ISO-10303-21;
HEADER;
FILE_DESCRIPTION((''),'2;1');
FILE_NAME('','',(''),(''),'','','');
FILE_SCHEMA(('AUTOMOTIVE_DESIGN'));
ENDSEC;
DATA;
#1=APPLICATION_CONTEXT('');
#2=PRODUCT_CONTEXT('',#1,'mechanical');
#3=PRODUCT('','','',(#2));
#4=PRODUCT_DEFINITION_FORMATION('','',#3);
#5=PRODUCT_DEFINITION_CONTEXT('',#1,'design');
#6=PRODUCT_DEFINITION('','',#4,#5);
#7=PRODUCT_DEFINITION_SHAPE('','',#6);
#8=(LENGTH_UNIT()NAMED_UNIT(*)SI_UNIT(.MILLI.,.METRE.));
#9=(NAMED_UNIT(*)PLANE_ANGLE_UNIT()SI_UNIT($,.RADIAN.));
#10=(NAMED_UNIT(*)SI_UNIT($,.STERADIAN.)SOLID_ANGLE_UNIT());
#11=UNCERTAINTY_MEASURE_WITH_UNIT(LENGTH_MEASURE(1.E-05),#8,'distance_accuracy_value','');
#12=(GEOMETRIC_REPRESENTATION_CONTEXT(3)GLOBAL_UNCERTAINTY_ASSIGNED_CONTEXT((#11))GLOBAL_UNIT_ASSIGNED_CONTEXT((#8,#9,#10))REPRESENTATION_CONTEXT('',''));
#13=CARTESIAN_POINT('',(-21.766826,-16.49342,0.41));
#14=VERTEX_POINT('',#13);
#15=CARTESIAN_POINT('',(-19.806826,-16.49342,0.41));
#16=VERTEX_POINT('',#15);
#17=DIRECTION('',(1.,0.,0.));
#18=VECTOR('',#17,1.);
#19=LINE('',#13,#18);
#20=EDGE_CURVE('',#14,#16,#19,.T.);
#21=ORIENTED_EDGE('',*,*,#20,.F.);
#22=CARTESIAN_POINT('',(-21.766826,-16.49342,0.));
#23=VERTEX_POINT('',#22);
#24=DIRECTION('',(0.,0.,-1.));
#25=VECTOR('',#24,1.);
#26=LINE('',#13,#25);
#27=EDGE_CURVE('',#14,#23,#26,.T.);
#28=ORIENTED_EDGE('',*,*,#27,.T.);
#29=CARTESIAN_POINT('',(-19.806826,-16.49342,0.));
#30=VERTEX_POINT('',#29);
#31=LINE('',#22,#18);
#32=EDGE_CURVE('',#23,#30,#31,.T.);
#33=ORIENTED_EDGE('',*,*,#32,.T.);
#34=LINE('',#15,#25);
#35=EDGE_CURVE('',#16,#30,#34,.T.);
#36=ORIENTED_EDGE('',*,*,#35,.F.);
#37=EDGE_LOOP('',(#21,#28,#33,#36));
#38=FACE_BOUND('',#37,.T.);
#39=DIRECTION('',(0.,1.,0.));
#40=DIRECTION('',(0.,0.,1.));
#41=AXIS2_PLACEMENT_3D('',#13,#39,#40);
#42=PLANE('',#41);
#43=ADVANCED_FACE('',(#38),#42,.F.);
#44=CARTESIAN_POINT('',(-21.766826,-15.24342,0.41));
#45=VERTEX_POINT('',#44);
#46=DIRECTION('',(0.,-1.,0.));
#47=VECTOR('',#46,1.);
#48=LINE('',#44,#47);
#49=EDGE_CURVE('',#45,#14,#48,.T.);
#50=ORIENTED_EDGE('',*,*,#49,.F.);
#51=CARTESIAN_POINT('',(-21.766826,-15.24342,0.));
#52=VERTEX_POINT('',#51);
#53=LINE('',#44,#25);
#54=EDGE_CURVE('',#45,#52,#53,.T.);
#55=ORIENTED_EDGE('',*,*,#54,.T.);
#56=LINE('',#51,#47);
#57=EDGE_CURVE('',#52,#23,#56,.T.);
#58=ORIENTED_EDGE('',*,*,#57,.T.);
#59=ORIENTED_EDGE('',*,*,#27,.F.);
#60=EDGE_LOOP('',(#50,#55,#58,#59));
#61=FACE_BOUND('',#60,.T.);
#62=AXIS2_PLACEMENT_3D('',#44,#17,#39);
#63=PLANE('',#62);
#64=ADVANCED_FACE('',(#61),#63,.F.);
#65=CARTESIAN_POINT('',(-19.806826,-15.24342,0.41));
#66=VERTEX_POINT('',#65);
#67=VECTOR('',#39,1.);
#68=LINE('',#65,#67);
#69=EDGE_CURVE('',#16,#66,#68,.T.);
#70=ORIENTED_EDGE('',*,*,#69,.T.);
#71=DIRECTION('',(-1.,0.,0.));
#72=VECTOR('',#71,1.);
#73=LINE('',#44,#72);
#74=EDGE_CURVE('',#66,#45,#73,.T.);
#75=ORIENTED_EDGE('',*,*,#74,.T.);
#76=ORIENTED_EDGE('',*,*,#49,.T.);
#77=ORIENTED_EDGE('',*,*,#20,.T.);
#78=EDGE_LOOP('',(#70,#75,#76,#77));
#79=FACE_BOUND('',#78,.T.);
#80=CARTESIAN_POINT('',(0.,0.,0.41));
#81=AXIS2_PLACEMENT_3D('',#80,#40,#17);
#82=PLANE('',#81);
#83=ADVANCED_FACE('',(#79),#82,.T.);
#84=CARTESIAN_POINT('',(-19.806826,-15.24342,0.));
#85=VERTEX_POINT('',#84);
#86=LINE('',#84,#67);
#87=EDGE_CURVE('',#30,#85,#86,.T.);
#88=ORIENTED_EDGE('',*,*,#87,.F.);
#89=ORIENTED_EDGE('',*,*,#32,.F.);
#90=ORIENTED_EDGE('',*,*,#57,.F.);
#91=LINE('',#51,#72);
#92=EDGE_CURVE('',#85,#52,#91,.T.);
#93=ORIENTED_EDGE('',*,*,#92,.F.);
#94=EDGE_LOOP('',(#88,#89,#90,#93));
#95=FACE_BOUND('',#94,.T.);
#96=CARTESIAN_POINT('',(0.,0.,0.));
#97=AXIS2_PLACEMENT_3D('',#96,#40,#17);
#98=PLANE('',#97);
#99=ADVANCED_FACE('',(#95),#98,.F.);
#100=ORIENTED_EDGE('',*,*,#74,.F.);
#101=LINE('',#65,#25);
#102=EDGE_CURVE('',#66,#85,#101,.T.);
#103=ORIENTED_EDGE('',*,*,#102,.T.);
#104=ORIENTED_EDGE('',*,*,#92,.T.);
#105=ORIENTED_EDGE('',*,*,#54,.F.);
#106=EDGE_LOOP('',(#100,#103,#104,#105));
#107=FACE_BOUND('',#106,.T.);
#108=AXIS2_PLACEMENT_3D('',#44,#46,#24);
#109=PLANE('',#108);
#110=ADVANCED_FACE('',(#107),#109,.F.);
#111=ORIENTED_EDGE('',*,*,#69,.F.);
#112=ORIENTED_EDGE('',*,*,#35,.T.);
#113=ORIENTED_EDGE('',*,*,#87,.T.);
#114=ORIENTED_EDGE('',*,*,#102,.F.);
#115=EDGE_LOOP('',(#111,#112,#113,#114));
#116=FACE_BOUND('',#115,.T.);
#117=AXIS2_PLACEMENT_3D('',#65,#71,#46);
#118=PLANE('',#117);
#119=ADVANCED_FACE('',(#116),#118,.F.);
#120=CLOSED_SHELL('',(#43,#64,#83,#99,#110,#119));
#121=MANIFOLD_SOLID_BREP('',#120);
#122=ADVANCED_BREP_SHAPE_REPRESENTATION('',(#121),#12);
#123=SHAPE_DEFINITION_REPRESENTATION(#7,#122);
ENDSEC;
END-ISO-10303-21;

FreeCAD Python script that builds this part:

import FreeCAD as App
import Part
import Sketcher
Q = App.Units.Quantity

doc = App.newDocument("Part")
body = doc.addObject("PartDesign::Body", "Body")

# Sketch on XY plane
sketch1 = body.newObject("Sketcher::SketchObject", "Sketch")
sketch1.AttachmentSupport = (doc.getObject("XY_Plane"), [""])
sketch1.MapMode = "FlatFace"
sketch1.addGeometry(Part.LineSegment(App.Vector(-21.8, -15.2, 0), App.Vector(-21.8, -16.5, 0)), False)
sketch1.addGeometry(Part.LineSegment(App.Vector(-21.8, -16.5, 0), App.Vector(-19.8, -16.5, 0)), False)
sketch1.addGeometry(Part.LineSegment(App.Vector(-19.8, -16.5, 0), App.Vector(-19.8, -15.2, 0)), False)
sketch1.addGeometry(Part.LineSegment(App.Vector(-19.8, -15.2, 0), App.Vector(-21.8, -15.2, 0)), False)
sketch1.addConstraint(Sketcher.Constraint("Coincident", 0, 2, 1, 1))
sketch1.addConstraint(Sketcher.Constraint("Coincident", 1, 2, 2, 1))
sketch1.addConstraint(Sketcher.Constraint("Coincident", 2, 2, 3, 1))
sketch1.addConstraint(Sketcher.Constraint("Coincident", 3, 2, 0, 1))
sketch1.addConstraint(Sketcher.Constraint("Vertical", 0))
sketch1.addConstraint(Sketcher.Constraint("Horizontal", 1))
sketch1.addConstraint(Sketcher.Constraint("Vertical", 2))
sketch1.addConstraint(Sketcher.Constraint("Horizontal", 3))
sketch1.addConstraint(Sketcher.Constraint("DistanceX", 1, 1, 1, 2, Q("1.96 mm")))
sketch1.addConstraint(Sketcher.Constraint("DistanceY", 0, 2, 0, 1, Q("1.25 mm")))
sketch1.addConstraint(Sketcher.Constraint("DistanceY", 0, 2, -1, 1, Q("16.49342 mm")))
sketch1.addConstraint(Sketcher.Constraint("DistanceX", 0, 2, -1, 1, Q("21.766826 mm")))
pad1 = body.newObject("PartDesign::Pad", "Pad")
pad1.Profile = sketch1
pad1.Length = 0.41

doc.recompute()
